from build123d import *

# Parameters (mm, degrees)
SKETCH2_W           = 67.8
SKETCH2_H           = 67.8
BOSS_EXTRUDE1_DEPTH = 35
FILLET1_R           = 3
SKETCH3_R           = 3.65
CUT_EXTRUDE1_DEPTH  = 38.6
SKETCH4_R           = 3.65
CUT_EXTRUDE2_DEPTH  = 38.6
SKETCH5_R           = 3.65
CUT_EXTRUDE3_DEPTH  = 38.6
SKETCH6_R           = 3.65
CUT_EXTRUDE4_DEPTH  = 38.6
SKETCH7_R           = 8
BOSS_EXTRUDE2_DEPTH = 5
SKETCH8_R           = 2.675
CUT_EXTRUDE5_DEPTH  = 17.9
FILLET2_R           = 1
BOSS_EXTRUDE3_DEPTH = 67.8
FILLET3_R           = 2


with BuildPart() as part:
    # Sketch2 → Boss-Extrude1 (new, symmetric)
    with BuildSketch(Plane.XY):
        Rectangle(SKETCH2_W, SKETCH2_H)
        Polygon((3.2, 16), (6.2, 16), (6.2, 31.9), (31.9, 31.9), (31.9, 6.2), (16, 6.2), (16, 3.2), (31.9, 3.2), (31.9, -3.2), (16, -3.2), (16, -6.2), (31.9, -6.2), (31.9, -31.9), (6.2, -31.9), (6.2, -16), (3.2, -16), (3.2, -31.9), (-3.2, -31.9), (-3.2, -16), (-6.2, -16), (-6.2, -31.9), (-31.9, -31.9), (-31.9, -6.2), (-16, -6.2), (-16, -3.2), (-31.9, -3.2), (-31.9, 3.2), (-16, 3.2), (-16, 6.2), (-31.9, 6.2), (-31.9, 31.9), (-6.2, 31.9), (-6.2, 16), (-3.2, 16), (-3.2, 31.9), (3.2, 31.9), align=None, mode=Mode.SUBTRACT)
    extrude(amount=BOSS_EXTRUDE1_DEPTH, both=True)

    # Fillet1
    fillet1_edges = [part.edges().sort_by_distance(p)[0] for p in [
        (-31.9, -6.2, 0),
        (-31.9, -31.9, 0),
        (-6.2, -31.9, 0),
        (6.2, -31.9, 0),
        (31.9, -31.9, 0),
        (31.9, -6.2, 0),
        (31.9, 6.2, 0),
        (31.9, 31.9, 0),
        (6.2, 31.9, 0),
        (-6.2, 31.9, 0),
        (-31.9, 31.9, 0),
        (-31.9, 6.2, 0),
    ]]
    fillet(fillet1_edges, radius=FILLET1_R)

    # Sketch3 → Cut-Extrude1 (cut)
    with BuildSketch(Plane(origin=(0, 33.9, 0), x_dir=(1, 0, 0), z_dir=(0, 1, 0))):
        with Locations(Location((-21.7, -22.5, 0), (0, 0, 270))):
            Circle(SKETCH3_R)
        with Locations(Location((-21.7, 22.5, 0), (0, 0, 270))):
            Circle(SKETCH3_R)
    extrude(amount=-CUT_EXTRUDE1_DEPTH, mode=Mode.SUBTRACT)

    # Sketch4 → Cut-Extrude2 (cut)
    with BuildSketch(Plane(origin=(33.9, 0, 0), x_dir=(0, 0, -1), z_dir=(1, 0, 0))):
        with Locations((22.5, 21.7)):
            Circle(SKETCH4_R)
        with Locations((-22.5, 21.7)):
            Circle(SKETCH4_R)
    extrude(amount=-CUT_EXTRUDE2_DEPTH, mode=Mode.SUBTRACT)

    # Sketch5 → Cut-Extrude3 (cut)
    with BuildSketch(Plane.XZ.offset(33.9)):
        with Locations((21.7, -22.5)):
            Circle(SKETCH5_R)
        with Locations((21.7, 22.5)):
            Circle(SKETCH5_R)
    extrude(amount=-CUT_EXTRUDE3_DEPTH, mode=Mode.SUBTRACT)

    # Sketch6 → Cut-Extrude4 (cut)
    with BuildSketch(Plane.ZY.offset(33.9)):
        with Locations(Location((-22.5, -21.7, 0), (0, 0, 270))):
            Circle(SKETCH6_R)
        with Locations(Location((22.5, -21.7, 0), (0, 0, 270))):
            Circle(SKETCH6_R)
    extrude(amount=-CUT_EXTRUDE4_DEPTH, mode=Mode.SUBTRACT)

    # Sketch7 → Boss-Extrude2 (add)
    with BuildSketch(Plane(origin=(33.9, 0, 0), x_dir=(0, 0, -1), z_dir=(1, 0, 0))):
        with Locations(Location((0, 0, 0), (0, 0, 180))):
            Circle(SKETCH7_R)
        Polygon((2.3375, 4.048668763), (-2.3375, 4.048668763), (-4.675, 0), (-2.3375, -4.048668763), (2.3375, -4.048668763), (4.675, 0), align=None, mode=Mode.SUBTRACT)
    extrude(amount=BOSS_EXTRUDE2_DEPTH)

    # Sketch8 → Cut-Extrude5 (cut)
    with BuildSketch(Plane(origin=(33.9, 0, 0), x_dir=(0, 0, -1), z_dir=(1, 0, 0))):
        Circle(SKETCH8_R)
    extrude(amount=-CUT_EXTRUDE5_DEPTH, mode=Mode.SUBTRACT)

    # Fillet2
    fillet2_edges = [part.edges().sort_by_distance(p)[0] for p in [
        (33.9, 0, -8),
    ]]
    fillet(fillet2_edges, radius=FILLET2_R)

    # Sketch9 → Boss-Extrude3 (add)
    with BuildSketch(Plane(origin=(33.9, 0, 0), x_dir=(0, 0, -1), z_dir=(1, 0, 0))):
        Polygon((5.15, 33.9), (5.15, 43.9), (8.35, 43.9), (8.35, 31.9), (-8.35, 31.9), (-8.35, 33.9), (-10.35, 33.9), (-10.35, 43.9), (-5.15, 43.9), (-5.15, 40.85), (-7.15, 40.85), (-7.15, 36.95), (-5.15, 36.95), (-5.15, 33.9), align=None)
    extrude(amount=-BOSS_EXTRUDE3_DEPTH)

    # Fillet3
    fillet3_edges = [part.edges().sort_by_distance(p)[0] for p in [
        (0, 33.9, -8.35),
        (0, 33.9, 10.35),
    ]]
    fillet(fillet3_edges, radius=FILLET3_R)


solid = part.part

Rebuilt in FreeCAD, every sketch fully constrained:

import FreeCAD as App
import Part
import Sketcher

V = App.Vector
Q = App.Units.Quantity


def edges_at(feature, points):
    """Names of the edges that pass closest to the given points."""
    edges = feature.Shape.Edges
    near = lambda p: min(range(len(edges)), key=lambda i: edges[i].distToShape(Part.Vertex(*p))[0])
    return sorted({f"Edge{near(p) + 1}" for p in points})


def add_polygon(sketch, points):
    """Adds a closed chain of lines whose ends are joined by coincident constraints."""
    first, n = sketch.GeometryCount, len(points)
    for a, b in zip(points, points[1:] + points[:1]):
        sketch.addGeometry(Part.LineSegment(App.Vector(*a, 0), App.Vector(*b, 0)), False)
    for i in range(n):
        sketch.addConstraint(Sketcher.Constraint("Coincident", first + i, 2, first + (i + 1) % n, 1))

doc = App.newDocument("Part")
params = doc.addObject("Spreadsheet::Sheet", "Params")
for row, (alias, value) in enumerate([
    ("sketch1_width", "3 mm"),
    ("sketch1_width2", "67.8 mm"),
    ("sketch1_width3", "25.7 mm"),
    ("sketch1_width4", "15.9 mm"),
    ("sketch1_width5", "6.4 mm"),
    ("pad1_length", "70 mm"),
    ("fillet_radius", "3 mm"),
    ("sketch2_diameter", "7.3 mm"),
    ("pocket1_length", "38.6 mm"),
    ("sketch3_diameter", "7.3 mm"),
    ("pocket2_length", "38.6 mm"),
    ("sketch4_diameter", "7.3 mm"),
    ("pocket3_length", "38.6 mm"),
    ("sketch5_diameter", "7.3 mm"),
    ("pocket4_length", "38.6 mm"),
    ("sketch6_diameter", "16 mm"),
    ("pad2_length", "5 mm"),
    ("sketch7_diameter", "5.35 mm"),
    ("pocket5_length", "17.9 mm"),
    ("fillet2_radius", "1 mm"),
    ("sketch8_width", "10 mm"),
    ("sketch8_width2", "2 mm"),
    ("sketch8_width3", "3.9 mm"),
    ("sketch8_height", "10.3 mm"),
    ("sketch8_height2", "5.2 mm"),
    ("pad3_length", "67.8 mm"),
    ("fillet3_radius", "2 mm"),
], start=1):
    params.set(f"A{row}", alias)
    params.set(f"B{row}", "=" + value)
    params.setAlias(f"B{row}", alias)

body = doc.addObject("PartDesign::Body", "Body")

# Sketch on XY plane
sketch1 = doc.addObject("Sketcher::SketchObject", "Sketch")
body.addObject(sketch1)
sketch1.AttachmentSupport = (doc.XY_Plane, [""])
sketch1.MapMode = "FlatFace"
add_polygon(sketch1, [(-33.9, 33.9), (-33.9, -33.9), (33.9, -33.9), (33.9, 33.9)])  # lines 0-3
add_polygon(sketch1, [(3.2, 31.9), (3.2, 16), (6.2, 16), (6.2, 31.9), (31.9, 31.9), (31.9, 6.2), (16, 6.2), (16, 3.2), (31.9, 3.2), (31.9, -3.2), (16, -3.2), (16, -6.2), (31.9, -6.2), (31.9, -31.9), (6.2, -31.9), (6.2, -16), (3.2, -16), (3.2, -31.9), (-3.2, -31.9), (-3.2, -16), (-6.2, -16), (-6.2, -31.9), (-31.9, -31.9), (-31.9, -6.2), (-16, -6.2), (-16, -3.2), (-31.9, -3.2), (-31.9, 3.2), (-16, 3.2), (-16, 6.2), (-31.9, 6.2), (-31.9, 31.9), (-6.2, 31.9), (-6.2, 16), (-3.2, 16), (-3.2, 31.9)])  # lines 4-39
sketch1.addConstraint(Sketcher.Constraint("Vertical", 0))
sketch1.addConstraint(Sketcher.Constraint("Horizontal", 1))
sketch1.addConstraint(Sketcher.Constraint("Vertical", 2))
sketch1.addConstraint(Sketcher.Constraint("Horizontal", 3))
sketch1.addConstraint(Sketcher.Constraint("Vertical", 4))
sketch1.addConstraint(Sketcher.Constraint("Horizontal", 5))
sketch1.addConstraint(Sketcher.Constraint("Vertical", 6))
sketch1.addConstraint(Sketcher.Constraint("Horizontal", 7))
sketch1.addConstraint(Sketcher.Constraint("Vertical", 8))
sketch1.addConstraint(Sketcher.Constraint("Horizontal", 9))
sketch1.addConstraint(Sketcher.Constraint("Vertical", 10))
sketch1.addConstraint(Sketcher.Constraint("Horizontal", 11))
sketch1.addConstraint(Sketcher.Constraint("Vertical", 12))
sketch1.addConstraint(Sketcher.Constraint("Horizontal", 13))
sketch1.addConstraint(Sketcher.Constraint("Vertical", 14))
sketch1.addConstraint(Sketcher.Constraint("Horizontal", 15))
sketch1.addConstraint(Sketcher.Constraint("Vertical", 16))
sketch1.addConstraint(Sketcher.Constraint("Horizontal", 17))
sketch1.addConstraint(Sketcher.Constraint("Vertical", 18))
sketch1.addConstraint(Sketcher.Constraint("Horizontal", 19))
sketch1.addConstraint(Sketcher.Constraint("Vertical", 20))
sketch1.addConstraint(Sketcher.Constraint("Horizontal", 21))
sketch1.addConstraint(Sketcher.Constraint("Vertical", 22))
sketch1.addConstraint(Sketcher.Constraint("Horizontal", 23))
sketch1.addConstraint(Sketcher.Constraint("Vertical", 24))
sketch1.addConstraint(Sketcher.Constraint("Horizontal", 25))
sketch1.addConstraint(Sketcher.Constraint("Vertical", 26))
sketch1.addConstraint(Sketcher.Constraint("Horizontal", 27))
sketch1.addConstraint(Sketcher.Constraint("Vertical", 28))
sketch1.addConstraint(Sketcher.Constraint("Horizontal", 29))
sketch1.addConstraint(Sketcher.Constraint("Vertical", 30))
sketch1.addConstraint(Sketcher.Constraint("Horizontal", 31))
sketch1.addConstraint(Sketcher.Constraint("Vertical", 32))
sketch1.addConstraint(Sketcher.Constraint("Horizontal", 33))
sketch1.addConstraint(Sketcher.Constraint("Vertical", 34))
sketch1.addConstraint(Sketcher.Constraint("Horizontal", 35))
sketch1.addConstraint(Sketcher.Constraint("Vertical", 36))
sketch1.addConstraint(Sketcher.Constraint("Horizontal", 37))
sketch1.addConstraint(Sketcher.Constraint("Vertical", 38))
sketch1.addConstraint(Sketcher.Constraint("Horizontal", 39))
sketch1.addConstraint(Sketcher.Constraint("Symmetric", 0, 2, 2, 2, -1, 1))
sketch1.addConstraint(Sketcher.Constraint("Symmetric", 4, 2, 22, 2, -1, 1))
sketch1.addConstraint(Sketcher.Constraint("Symmetric", 6, 2, 24, 2, -1, 1))
sketch1.addConstraint(Sketcher.Constraint("Symmetric", 8, 2, 26, 2, -1, 1))
sketch1.addConstraint(Sketcher.Constraint("Symmetric", 10, 2, 28, 2, -1, 1))
sketch1.addConstraint(Sketcher.Constraint("Symmetric", 12, 2, 30, 2, -1, 1))
sketch1.addConstraint(Sketcher.Constraint("Symmetric", 14, 2, 32, 2, -1, 1))
sketch1.addConstraint(Sketcher.Constraint("Symmetric", 16, 2, 34, 2, -1, 1))
sketch1.addConstraint(Sketcher.Constraint("Symmetric", 18, 2, 36, 2, -1, 1))
sketch1.addConstraint(Sketcher.Constraint("Symmetric", 20, 2, 38, 2, -1, 1))
sketch1.addConstraint(Sketcher.Constraint("Symmetric", 19, 2, 22, 2, -2))
sketch1.addConstraint(Sketcher.Constraint("Symmetric", 17, 2, 24, 2, -2))
sketch1.addConstraint(Sketcher.Constraint("Symmetric", 15, 2, 26, 2, -2))
sketch1.addConstraint(Sketcher.Constraint("Symmetric", 13, 2, 28, 2, -2))
sketch1.addConstraint(Sketcher.Constraint("Horizontal", 17, 2, 20, 2))
sketch1.addConstraint(Sketcher.Constraint("Vertical", 8, 2, 11, 2))
sketch1.addConstraint(Sketcher.Constraint("Equal", 3, 0))
sketch1.addConstraint(Sketcher.Constraint("Equal", 33, 4))
sketch1.addConstraint(Sketcher.Constraint("Equal", 35, 8))
sketch1.addConstraint(Sketcher.Constraint("Equal", 37, 10))
sketch1.addConstraint(Sketcher.Constraint("Equal", 39, 12))
sketch1.addConstraint(Sketcher.Constraint("DistanceX", 5, 1, 5, 2, Q("3 mm")))
sketch1.addConstraint(Sketcher.Constraint("DistanceX", 1, 1, 1, 2, Q("67.8 mm")))
sketch1.addConstraint(Sketcher.Constraint("DistanceX", 7, 1, 7, 2, Q("25.7 mm")))
sketch1.addConstraint(Sketcher.Constraint("DistanceX", 9, 2, 9, 1, Q("15.9 mm")))
sketch1.addConstraint(Sketcher.Constraint("DistanceX", 21, 2, 21, 1, Q("6.4 mm")))
sketch1.setExpression("Constraints[101]", "Params.sketch1_width")
sketch1.setExpression("Constraints[102]", "Params.sketch1_width2")
sketch1.setExpression("Constraints[103]", "Params.sketch1_width3")
sketch1.setExpression("Constraints[104]", "Params.sketch1_width4")
sketch1.setExpression("Constraints[105]", "Params.sketch1_width5")
pad1 = doc.addObject("PartDesign::Pad", "Pad")
body.addObject(pad1)
pad1.Profile = sketch1
pad1.setExpression("Length", "Params.pad1_length")
pad1.Midplane = True
doc.recompute()

fillet = doc.addObject("PartDesign::Fillet", "Fillet")
body.addObject(fillet)
fillet.Base = (pad1, edges_at(pad1, [
    (-31.9, -6.2, 0),
    (-31.9, -31.9, 0),
    (-6.2, -31.9, 0),
    (6.2, -31.9, 0),
    (31.9, -31.9, 0),
    (31.9, -6.2, 0),
    (31.9, 6.2, 0),
    (31.9, 31.9, 0),
    (6.2, 31.9, 0),
    (-6.2, 31.9, 0),
    (-31.9, 31.9, 0),
    (-31.9, 6.2, 0),
]))
fillet.setExpression("Radius", "Params.fillet_radius")

# Sketch on XZ plane
sketch2 = doc.addObject("Sketcher::SketchObject", "Sketch001")
body.addObject(sketch2)
sketch2.AttachmentSupport = (doc.XZ_Plane, [""])
sketch2.MapMode = "FlatFace"
sketch2.AttachmentOffset = App.Placement(V(0, 0, -33.9), App.Rotation())
sketch2.addGeometry(Part.Circle(V(-21.7, 22.5, 0), V(0, 0, 1), 3.65), False)
sketch2.addGeometry(Part.Circle(V(-21.7, -22.5, 0), V(0, 0, 1), 3.65), False)
sketch2.addConstraint(Sketcher.Constraint("Equal", 0, 1))
sketch2.addConstraint(Sketcher.Constraint("Symmetric", 0, 3, 1, 3, -1))
sketch2.addConstraint(Sketcher.Constraint("Diameter", 0, Q("7.3 mm")))
sketch2.addConstraint(Sketcher.Constraint("DistanceY", 1, 3, 0, 3, Q("45 mm")))
sketch2.addConstraint(Sketcher.Constraint("DistanceX", 0, 3, -1, 1, Q("21.7 mm")))
sketch2.setExpression("Constraints[2]", "Params.sketch2_diameter")
pocket1 = doc.addObject("PartDesign::Pocket", "Pocket")
body.addObject(pocket1)
pocket1.Profile = sketch2
pocket1.setExpression("Length", "Params.pocket1_length")
pocket1.Reversed = True

# Sketch on YZ plane
sketch3 = doc.addObject("Sketcher::SketchObject", "Sketch002")
body.addObject(sketch3)
sketch3.AttachmentSupport = (doc.YZ_Plane, [""])
sketch3.MapMode = "FlatFace"
sketch3.AttachmentOffset = App.Placement(V(0, 0, 33.9), App.Rotation())
sketch3.addGeometry(Part.Circle(V(21.7, -22.5, 0), V(0, 0, 1), 3.65), False)
sketch3.addGeometry(Part.Circle(V(21.7, 22.5, 0), V(0, 0, 1), 3.65), False)
sketch3.addConstraint(Sketcher.Constraint("Equal", 0, 1))
sketch3.addConstraint(Sketcher.Constraint("Symmetric", 0, 3, 1, 3, -1))
sketch3.addConstraint(Sketcher.Constraint("Diameter", 0, Q("7.3 mm")))
sketch3.addConstraint(Sketcher.Constraint("DistanceY", 0, 3, 1, 3, Q("45 mm")))
sketch3.addConstraint(Sketcher.Constraint("DistanceX", -1, 1, 0, 3, Q("21.7 mm")))
sketch3.setExpression("Constraints[2]", "Params.sketch3_diameter")
pocket2 = doc.addObject("PartDesign::Pocket", "Pocket001")
body.addObject(pocket2)
pocket2.Profile = sketch3
pocket2.setExpression("Length", "Params.pocket2_length")

# Sketch on XZ plane
sketch4 = doc.addObject("Sketcher::SketchObject", "Sketch003")
body.addObject(sketch4)
sketch4.AttachmentSupport = (doc.XZ_Plane, [""])
sketch4.MapMode = "FlatFace"
sketch4.AttachmentOffset = App.Placement(V(0, 0, 33.9), App.Rotation())
sketch4.addGeometry(Part.Circle(V(21.7, -22.5, 0), V(0, 0, 1), 3.65), False)
sketch4.addGeometry(Part.Circle(V(21.7, 22.5, 0), V(0, 0, 1), 3.65), False)
sketch4.addConstraint(Sketcher.Constraint("Equal", 0, 1))
sketch4.addConstraint(Sketcher.Constraint("Symmetric", 0, 3, 1, 3, -1))
sketch4.addConstraint(Sketcher.Constraint("Diameter", 0, Q("7.3 mm")))
sketch4.addConstraint(Sketcher.Constraint("DistanceY", 0, 3, 1, 3, Q("45 mm")))
sketch4.addConstraint(Sketcher.Constraint("DistanceX", -1, 1, 0, 3, Q("21.7 mm")))
sketch4.setExpression("Constraints[2]", "Params.sketch4_diameter")
pocket3 = doc.addObject("PartDesign::Pocket", "Pocket002")
body.addObject(pocket3)
pocket3.Profile = sketch4
pocket3.setExpression("Length", "Params.pocket3_length")

# Sketch on YZ plane
sketch5 = doc.addObject("Sketcher::SketchObject", "Sketch004")
body.addObject(sketch5)
sketch5.AttachmentSupport = (doc.YZ_Plane, [""])
sketch5.MapMode = "FlatFace"
sketch5.AttachmentOffset = App.Placement(V(0, 0, -33.9), App.Rotation())
sketch5.addGeometry(Part.Circle(V(-21.7, -22.5, 0), V(0, 0, 1), 3.65), False)
sketch5.addGeometry(Part.Circle(V(-21.7, 22.5, 0), V(0, 0, 1), 3.65), False)
sketch5.addConstraint(Sketcher.Constraint("Equal", 0, 1))
sketch5.addConstraint(Sketcher.Constraint("Symmetric", 0, 3, 1, 3, -1))
sketch5.addConstraint(Sketcher.Constraint("Diameter", 0, Q("7.3 mm")))
sketch5.addConstraint(Sketcher.Constraint("DistanceY", 0, 3, 1, 3, Q("45 mm")))
sketch5.addConstraint(Sketcher.Constraint("DistanceX", 0, 3, -1, 1, Q("21.7 mm")))
sketch5.setExpression("Constraints[2]", "Params.sketch5_diameter")
pocket4 = doc.addObject("PartDesign::Pocket", "Pocket003")
body.addObject(pocket4)
pocket4.Profile = sketch5
pocket4.setExpression("Length", "Params.pocket4_length")
pocket4.Reversed = True

# Sketch on YZ plane
sketch6 = doc.addObject("Sketcher::SketchObject", "Sketch005")
body.addObject(sketch6)
sketch6.AttachmentSupport = (doc.YZ_Plane, [""])
sketch6.MapMode = "FlatFace"
sketch6.AttachmentOffset = App.Placement(V(0, 0, 33.9), App.Rotation())
sketch6.addGeometry(Part.Circle(V(0, 0, 0), V(0, 0, 1), 8), False)  # 0
add_polygon(sketch6, [(4.048669, 2.3375), (4.048669, -2.3375), (0, -4.675), (-4.048669, -2.3375), (-4.048669, 2.3375), (0, 4.675)])  # lines 1-6
sketch6.addConstraint(Sketcher.Constraint("Vertical", 1))
sketch6.addConstraint(Sketcher.Constraint("Vertical", 4))
sketch6.addConstraint(Sketcher.Constraint("Coincident", 0, 3, -1, 1))
sketch6.addConstraint(Sketcher.Constraint("Symmetric", 1, 2, 4, 2, -1, 1))
sketch6.addConstraint(Sketcher.Constraint("Symmetric", 2, 2, 5, 2, -1, 1))
sketch6.addConstraint(Sketcher.Constraint("PointOnObject", 2, 2, -2))
sketch6.addConstraint(Sketcher.Constraint("Parallel", 3, 6))
sketch6.addConstraint(Sketcher.Constraint("Horizontal", 1, 2, 3, 2))
sketch6.addConstraint(Sketcher.Constraint("Diameter", 0, Q("16 mm")))
sketch6.addConstraint(Sketcher.Constraint("Angle", 2, Q("-150 deg")))
sketch6.addConstraint(Sketcher.Constraint("DistanceY", 1, 2, 1, 1, Q("4.675 mm")))
sketch6.addConstraint(Sketcher.Constraint("DistanceY", 2, 2, 5, 2, Q("9.35 mm")))
sketch6.setExpression("Constraints[14]", "Params.sketch6_diameter")
pad2 = doc.addObject("PartDesign::Pad", "Pad001")
body.addObject(pad2)
pad2.Profile = sketch6
pad2.setExpression("Length", "Params.pad2_length")

# Sketch on YZ plane
sketch7 = doc.addObject("Sketcher::SketchObject", "Sketch006")
body.addObject(sketch7)
sketch7.AttachmentSupport = (doc.YZ_Plane, [""])
sketch7.MapMode = "FlatFace"
sketch7.AttachmentOffset = App.Placement(V(0, 0, 33.9), App.Rotation())
sketch7.addGeometry(Part.Circle(V(0, 0, 0), V(0, 0, 1), 2.675), False)
sketch7.addConstraint(Sketcher.Constraint("Coincident", 0, 3, -1, 1))
sketch7.addConstraint(Sketcher.Constraint("Diameter", 0, Q("5.35 mm")))
sketch7.setExpression("Constraints[1]", "Params.sketch7_diameter")
pocket5 = doc.addObject("PartDesign::Pocket", "Pocket004")
body.addObject(pocket5)
pocket5.Profile = sketch7
pocket5.setExpression("Length", "Params.pocket5_length")
doc.recompute()

fillet2 = doc.addObject("PartDesign::Fillet", "Fillet001")
body.addObject(fillet2)
fillet2.Base = (pocket5, edges_at(pocket5, [(33.9, 0, -8)]))
fillet2.setExpression("Radius", "Params.fillet2_radius")

# Sketch on YZ plane
sketch8 = doc.addObject("Sketcher::SketchObject", "Sketch007")
body.addObject(sketch8)
sketch8.AttachmentSupport = (doc.YZ_Plane, [""])
sketch8.MapMode = "FlatFace"
sketch8.AttachmentOffset = App.Placement(V(0, 0, 33.9), App.Rotation())
add_polygon(sketch8, [(43.9, -5.15), (33.9, -5.15), (33.9, 5.15), (36.95, 5.15), (36.95, 7.15), (40.85, 7.15), (40.85, 5.15), (43.9, 5.15), (43.9, 10.35), (33.9, 10.35), (33.9, 8.35), (31.9, 8.35), (31.9, -8.35), (43.9, -8.35)])  # lines 0-13
sketch8.addConstraint(Sketcher.Constraint("Horizontal", 0))
sketch8.addConstraint(Sketcher.Constraint("Vertical", 1))
sketch8.addConstraint(Sketcher.Constraint("Horizontal", 2))
sketch8.addConstraint(Sketcher.Constraint("Vertical", 3))
sketch8.addConstraint(Sketcher.Constraint("Horizontal", 4))
sketch8.addConstraint(Sketcher.Constraint("Vertical", 5))
sketch8.addConstraint(Sketcher.Constraint("Horizontal", 6))
sketch8.addConstraint(Sketcher.Constraint("Vertical", 7))
sketch8.addConstraint(Sketcher.Constraint("Horizontal", 8))
sketch8.addConstraint(Sketcher.Constraint("Vertical", 9))
sketch8.addConstraint(Sketcher.Constraint("Horizontal", 10))
sketch8.addConstraint(Sketcher.Constraint("Vertical", 11))
sketch8.addConstraint(Sketcher.Constraint("Horizontal", 12))
sketch8.addConstraint(Sketcher.Constraint("Vertical", 13))
sketch8.addConstraint(Sketcher.Constraint("Symmetric", 6, 2, 13, 2, -1))
sketch8.addConstraint(Sketcher.Constraint("Horizontal", 2, 2, 5, 2))
sketch8.addConstraint(Sketcher.Constraint("Vertical", 1, 2, 8, 2))
sketch8.addConstraint(Sketcher.Constraint("Equal", 2, 6))
sketch8.addConstraint(Sketcher.Constraint("Equal", 10, 3))
sketch8.addConstraint(Sketcher.Constraint("Equal", 5, 9))
sketch8.addConstraint(Sketcher.Constraint("DistanceX", 0, 2, 0, 1, Q("10 mm")))
sketch8.addConstraint(Sketcher.Constraint("DistanceX", 10, 2, 10, 1, Q("2 mm")))
sketch8.addConstraint(Sketcher.Constraint("DistanceX", 4, 1, 4, 2, Q("3.9 mm")))
sketch8.addConstraint(Sketcher.Constraint("DistanceY", 1, 1, 1, 2, Q("10.3 mm")))
sketch8.addConstraint(Sketcher.Constraint("DistanceY", 7, 1, 7, 2, Q("5.2 mm")))
sketch8.addConstraint(Sketcher.Constraint("DistanceY", 11, 2, 11, 1, Q("16.7 mm")))
sketch8.addConstraint(Sketcher.Constraint("DistanceX", -1, 1, 0, 2, Q("33.9 mm")))
sketch8.setExpression("Constraints[34]", "Params.sketch8_width")
sketch8.setExpression("Constraints[35]", "Params.sketch8_width2")
sketch8.setExpression("Constraints[36]", "Params.sketch8_width3")
sketch8.setExpression("Constraints[37]", "Params.sketch8_height")
sketch8.setExpression("Constraints[38]", "Params.sketch8_height2")
pad3 = doc.addObject("PartDesign::Pad", "Pad002")
body.addObject(pad3)
pad3.Profile = sketch8
pad3.setExpression("Length", "Params.pad3_length")
pad3.Reversed = True
doc.recompute()

fillet3 = doc.addObject("PartDesign::Fillet", "Fillet002")
body.addObject(fillet3)
fillet3.Base = (pad3, edges_at(pad3, [(0, 33.9, -8.35), (0, 33.9, 10.35)]))
fillet3.setExpression("Radius", "Params.fillet3_radius")

doc.recompute()
